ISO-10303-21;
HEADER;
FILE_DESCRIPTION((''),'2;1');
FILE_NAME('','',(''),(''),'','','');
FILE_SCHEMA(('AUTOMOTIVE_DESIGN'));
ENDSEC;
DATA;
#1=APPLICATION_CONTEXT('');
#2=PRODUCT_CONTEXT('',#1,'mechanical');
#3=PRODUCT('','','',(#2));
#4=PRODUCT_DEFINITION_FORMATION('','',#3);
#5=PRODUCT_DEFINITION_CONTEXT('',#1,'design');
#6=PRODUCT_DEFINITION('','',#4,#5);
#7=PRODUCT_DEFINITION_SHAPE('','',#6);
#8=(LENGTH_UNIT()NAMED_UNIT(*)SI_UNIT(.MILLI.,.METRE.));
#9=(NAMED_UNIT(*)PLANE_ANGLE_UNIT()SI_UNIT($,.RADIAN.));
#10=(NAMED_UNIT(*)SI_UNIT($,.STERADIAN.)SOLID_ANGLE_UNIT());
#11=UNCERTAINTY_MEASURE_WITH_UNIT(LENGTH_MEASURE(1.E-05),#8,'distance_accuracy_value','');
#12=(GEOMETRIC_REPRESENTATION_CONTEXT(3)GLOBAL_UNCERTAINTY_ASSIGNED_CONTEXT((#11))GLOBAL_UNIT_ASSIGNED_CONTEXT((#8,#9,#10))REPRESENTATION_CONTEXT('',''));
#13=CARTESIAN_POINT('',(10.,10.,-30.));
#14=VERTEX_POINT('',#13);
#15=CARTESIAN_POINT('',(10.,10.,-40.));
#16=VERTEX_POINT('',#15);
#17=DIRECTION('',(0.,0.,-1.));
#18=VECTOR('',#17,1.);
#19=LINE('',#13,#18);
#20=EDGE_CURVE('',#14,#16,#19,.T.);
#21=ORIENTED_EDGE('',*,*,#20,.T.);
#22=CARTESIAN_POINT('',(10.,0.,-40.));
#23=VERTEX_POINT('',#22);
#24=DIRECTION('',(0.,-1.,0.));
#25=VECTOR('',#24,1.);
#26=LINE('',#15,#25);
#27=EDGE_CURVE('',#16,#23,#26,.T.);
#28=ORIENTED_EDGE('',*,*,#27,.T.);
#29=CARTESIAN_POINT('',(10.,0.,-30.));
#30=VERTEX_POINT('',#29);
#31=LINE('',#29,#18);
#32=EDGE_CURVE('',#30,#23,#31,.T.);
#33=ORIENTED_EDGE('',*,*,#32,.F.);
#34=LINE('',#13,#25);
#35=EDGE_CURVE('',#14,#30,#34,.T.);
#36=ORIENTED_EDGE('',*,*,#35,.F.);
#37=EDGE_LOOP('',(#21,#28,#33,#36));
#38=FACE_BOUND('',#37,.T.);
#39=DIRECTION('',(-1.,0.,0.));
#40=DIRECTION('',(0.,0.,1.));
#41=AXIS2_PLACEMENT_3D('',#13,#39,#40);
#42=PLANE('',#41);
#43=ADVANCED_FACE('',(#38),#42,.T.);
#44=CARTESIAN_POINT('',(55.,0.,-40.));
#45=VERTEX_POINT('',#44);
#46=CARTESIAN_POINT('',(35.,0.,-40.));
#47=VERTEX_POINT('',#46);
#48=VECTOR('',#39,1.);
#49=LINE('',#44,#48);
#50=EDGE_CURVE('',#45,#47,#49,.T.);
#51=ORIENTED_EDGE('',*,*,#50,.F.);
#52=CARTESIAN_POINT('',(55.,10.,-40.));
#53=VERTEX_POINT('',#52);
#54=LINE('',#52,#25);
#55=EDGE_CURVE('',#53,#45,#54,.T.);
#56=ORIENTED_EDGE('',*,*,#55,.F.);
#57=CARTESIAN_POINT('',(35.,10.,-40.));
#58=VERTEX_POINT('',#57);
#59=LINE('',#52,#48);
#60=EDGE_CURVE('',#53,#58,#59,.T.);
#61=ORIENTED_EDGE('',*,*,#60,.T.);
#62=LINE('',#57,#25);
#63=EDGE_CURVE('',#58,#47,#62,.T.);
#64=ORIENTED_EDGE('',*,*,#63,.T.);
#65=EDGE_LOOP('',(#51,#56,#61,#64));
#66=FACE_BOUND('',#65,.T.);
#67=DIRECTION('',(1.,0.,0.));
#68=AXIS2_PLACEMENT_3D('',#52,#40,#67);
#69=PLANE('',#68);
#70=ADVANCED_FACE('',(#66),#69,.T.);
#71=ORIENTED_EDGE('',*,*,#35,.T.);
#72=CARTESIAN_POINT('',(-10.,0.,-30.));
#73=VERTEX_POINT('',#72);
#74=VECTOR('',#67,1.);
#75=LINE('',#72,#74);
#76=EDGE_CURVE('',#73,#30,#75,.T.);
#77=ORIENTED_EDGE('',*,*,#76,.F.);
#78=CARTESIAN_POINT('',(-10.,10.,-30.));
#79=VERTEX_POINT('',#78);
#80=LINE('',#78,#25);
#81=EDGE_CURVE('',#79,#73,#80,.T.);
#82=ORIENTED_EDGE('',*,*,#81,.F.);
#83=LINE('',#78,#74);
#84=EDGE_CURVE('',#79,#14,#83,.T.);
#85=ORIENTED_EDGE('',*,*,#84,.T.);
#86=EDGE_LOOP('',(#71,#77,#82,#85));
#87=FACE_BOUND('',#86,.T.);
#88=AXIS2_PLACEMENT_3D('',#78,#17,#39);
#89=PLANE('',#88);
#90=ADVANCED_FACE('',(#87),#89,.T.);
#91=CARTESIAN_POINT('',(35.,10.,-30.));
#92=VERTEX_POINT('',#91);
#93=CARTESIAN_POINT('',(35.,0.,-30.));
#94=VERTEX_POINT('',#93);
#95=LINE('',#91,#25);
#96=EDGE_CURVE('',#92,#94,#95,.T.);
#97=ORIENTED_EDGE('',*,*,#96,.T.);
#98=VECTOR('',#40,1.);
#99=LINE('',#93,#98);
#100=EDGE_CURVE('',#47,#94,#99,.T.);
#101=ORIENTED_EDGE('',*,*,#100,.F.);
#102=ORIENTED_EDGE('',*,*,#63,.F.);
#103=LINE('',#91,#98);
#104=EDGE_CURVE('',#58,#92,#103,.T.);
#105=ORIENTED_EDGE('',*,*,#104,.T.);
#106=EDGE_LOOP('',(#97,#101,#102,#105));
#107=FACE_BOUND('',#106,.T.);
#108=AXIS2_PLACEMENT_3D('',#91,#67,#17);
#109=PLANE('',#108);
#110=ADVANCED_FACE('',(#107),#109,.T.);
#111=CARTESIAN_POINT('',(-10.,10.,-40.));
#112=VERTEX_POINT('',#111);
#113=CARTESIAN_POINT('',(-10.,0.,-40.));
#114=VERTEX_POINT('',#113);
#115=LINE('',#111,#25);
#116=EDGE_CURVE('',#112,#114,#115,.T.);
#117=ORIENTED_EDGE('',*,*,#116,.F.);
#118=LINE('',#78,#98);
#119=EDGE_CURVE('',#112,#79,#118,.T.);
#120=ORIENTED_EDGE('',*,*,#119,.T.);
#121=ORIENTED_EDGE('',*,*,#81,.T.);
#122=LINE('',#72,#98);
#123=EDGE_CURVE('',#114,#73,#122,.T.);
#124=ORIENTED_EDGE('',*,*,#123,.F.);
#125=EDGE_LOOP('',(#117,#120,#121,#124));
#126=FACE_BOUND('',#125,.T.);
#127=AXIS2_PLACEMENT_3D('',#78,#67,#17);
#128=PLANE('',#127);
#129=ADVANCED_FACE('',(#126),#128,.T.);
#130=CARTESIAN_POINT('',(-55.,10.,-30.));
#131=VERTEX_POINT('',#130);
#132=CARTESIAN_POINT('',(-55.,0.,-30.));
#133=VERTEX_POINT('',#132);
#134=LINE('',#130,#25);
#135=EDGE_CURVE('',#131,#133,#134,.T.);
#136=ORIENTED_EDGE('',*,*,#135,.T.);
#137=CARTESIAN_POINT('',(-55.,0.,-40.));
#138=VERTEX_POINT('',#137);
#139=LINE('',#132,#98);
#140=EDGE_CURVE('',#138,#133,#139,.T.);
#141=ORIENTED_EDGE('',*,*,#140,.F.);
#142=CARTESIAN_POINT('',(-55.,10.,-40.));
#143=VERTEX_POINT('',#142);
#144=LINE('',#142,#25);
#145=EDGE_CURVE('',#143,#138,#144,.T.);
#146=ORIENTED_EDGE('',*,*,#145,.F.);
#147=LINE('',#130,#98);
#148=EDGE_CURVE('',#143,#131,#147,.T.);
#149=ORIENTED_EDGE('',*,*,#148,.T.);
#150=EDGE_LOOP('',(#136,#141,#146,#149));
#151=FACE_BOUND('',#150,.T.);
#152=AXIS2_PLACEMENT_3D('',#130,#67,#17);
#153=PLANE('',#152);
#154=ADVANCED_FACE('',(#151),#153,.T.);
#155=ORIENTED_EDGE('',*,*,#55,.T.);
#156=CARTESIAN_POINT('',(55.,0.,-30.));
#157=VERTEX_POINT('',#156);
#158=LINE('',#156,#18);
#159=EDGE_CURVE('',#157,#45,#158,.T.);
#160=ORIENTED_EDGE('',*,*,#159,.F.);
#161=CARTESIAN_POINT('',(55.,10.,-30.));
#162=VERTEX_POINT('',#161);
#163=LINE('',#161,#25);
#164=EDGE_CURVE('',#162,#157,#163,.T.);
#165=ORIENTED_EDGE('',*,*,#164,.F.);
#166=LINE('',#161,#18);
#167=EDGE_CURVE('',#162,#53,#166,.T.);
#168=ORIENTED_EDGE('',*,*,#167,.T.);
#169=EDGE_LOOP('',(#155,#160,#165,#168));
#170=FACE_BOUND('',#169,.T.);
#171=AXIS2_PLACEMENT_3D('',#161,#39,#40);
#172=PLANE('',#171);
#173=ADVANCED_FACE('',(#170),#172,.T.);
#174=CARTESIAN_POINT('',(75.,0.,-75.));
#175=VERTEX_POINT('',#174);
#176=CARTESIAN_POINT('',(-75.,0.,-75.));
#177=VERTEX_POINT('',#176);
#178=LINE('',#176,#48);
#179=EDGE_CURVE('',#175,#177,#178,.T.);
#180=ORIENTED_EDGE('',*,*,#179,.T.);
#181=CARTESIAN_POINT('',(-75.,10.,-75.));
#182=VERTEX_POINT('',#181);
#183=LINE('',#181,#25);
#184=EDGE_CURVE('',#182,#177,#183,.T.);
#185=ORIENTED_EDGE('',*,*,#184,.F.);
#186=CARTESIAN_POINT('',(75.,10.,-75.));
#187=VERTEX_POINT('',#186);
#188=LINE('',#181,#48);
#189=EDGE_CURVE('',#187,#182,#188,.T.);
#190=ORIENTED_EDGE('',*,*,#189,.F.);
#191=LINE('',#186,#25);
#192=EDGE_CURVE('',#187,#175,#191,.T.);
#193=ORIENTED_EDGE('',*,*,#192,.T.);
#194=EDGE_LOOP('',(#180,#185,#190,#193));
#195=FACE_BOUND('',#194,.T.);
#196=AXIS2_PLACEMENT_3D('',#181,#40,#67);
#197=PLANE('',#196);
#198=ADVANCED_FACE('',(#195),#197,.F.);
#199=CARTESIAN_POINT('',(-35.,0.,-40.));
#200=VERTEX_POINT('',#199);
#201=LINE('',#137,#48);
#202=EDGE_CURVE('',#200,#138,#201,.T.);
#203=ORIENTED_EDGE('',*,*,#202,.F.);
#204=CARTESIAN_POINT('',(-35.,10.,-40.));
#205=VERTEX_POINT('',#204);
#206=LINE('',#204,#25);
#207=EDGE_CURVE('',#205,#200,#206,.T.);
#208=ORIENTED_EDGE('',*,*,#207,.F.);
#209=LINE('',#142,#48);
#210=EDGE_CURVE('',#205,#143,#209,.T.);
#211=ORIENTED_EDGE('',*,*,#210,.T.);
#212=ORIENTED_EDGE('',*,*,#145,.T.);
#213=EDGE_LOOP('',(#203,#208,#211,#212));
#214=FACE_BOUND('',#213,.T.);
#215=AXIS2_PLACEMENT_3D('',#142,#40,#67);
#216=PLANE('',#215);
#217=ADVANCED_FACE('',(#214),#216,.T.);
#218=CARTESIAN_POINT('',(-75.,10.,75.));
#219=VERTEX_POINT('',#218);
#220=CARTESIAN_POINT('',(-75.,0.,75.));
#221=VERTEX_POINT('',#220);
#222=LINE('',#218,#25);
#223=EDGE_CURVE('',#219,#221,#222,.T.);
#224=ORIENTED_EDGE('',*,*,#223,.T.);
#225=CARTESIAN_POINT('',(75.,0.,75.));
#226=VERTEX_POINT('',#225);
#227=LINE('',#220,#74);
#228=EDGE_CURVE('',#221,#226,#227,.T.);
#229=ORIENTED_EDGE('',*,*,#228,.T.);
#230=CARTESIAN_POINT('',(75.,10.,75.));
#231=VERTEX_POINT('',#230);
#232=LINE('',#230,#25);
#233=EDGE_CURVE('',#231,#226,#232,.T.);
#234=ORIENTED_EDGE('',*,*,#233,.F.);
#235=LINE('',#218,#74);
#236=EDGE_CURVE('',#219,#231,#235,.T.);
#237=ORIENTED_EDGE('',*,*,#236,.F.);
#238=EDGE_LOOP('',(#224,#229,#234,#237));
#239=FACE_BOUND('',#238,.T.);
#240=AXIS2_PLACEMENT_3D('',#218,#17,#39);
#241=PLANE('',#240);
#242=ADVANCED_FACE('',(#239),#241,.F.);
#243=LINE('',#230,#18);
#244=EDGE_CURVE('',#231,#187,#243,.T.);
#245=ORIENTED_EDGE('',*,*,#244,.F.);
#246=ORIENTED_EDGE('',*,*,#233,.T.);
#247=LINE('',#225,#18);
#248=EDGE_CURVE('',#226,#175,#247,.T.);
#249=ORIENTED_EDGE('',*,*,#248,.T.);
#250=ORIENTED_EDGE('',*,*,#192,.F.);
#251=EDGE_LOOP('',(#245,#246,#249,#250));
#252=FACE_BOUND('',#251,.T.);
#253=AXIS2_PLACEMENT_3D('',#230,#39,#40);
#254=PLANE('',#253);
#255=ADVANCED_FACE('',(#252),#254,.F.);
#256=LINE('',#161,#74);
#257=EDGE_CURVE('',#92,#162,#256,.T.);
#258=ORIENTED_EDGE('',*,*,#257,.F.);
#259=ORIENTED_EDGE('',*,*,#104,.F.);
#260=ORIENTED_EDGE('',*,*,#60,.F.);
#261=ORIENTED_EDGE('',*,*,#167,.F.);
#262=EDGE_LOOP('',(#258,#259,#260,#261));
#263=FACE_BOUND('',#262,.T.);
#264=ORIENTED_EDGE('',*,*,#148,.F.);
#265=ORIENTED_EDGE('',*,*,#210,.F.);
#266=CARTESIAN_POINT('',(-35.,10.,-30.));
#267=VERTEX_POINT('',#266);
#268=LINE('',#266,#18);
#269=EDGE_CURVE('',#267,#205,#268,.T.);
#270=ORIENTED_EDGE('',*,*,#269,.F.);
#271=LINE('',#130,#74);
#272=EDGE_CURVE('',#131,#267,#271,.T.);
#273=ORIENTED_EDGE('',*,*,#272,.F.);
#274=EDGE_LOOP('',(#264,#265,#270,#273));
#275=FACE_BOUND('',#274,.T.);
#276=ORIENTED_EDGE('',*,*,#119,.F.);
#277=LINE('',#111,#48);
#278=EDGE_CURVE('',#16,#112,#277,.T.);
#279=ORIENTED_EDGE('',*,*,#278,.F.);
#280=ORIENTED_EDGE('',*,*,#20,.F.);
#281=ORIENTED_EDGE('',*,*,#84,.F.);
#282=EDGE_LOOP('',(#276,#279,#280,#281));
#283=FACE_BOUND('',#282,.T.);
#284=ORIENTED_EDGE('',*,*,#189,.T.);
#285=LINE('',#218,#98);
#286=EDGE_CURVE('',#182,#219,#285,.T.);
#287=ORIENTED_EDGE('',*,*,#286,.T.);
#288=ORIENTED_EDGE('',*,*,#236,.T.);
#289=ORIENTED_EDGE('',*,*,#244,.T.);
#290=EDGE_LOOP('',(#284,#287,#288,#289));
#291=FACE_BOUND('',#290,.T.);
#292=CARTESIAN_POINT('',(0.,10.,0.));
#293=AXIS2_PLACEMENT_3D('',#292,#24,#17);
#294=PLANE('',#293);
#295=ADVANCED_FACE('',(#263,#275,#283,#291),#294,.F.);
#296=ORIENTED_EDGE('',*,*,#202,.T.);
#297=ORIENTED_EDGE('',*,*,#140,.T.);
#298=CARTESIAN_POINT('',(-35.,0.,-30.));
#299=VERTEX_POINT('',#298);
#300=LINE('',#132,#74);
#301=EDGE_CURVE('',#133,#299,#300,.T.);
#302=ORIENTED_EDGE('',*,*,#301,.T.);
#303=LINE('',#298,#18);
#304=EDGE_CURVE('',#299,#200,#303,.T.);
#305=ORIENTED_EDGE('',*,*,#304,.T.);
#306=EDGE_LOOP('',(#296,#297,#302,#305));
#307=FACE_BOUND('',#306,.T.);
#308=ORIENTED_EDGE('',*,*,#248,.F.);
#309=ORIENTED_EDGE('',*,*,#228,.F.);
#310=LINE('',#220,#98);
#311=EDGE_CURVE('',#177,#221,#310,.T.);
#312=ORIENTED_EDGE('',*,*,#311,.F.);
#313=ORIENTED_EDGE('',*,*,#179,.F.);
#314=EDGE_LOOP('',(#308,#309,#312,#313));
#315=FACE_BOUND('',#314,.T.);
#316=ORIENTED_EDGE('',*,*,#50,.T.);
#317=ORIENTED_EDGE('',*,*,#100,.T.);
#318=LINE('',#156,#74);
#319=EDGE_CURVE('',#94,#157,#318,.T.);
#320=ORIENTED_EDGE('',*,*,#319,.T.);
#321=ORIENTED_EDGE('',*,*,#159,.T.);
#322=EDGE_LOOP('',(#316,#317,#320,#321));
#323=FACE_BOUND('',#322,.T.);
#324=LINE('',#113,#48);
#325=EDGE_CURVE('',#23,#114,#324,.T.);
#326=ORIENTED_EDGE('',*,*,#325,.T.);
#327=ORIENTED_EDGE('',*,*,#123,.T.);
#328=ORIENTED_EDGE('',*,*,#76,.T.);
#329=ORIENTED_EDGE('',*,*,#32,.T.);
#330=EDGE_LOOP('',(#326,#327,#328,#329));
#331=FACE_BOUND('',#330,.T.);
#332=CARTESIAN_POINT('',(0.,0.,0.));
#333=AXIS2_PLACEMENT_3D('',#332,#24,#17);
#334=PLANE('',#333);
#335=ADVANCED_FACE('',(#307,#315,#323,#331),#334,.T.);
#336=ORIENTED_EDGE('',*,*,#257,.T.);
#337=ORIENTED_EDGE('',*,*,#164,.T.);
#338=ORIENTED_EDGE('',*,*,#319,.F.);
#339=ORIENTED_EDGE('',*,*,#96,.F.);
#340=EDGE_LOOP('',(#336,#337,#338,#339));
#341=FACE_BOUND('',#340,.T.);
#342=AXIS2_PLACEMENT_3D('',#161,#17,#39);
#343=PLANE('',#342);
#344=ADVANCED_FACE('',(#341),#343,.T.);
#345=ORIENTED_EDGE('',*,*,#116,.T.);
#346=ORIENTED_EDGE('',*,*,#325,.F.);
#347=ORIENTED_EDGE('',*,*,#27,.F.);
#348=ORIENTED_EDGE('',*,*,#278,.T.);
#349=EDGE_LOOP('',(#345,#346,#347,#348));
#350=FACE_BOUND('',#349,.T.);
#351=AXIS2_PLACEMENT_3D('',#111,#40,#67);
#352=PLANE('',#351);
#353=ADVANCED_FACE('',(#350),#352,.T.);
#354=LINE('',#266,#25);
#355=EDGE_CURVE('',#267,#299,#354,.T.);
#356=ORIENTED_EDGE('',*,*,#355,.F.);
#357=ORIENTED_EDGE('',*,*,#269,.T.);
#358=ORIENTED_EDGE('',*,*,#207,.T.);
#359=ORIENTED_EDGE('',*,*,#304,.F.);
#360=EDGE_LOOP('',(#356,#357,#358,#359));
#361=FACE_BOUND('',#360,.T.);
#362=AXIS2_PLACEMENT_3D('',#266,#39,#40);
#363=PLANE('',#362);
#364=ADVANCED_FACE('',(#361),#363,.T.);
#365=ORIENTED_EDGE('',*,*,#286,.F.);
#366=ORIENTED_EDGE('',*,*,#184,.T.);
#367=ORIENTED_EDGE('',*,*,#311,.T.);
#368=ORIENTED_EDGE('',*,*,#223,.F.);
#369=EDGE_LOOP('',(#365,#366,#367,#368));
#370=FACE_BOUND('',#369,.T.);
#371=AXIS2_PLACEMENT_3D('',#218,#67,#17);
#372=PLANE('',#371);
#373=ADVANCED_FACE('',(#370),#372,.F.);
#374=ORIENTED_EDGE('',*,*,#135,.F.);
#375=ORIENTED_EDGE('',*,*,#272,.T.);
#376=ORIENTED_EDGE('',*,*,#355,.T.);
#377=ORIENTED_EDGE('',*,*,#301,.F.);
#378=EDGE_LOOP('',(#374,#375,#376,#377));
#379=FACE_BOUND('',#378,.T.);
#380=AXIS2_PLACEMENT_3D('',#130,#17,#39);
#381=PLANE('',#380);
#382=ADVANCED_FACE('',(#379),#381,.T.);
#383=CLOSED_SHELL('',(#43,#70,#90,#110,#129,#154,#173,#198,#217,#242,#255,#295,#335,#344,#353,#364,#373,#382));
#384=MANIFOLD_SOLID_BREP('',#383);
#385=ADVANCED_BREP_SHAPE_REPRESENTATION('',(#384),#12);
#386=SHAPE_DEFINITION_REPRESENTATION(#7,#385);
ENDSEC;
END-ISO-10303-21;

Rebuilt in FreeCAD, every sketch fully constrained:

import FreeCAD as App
import Part
import Sketcher
Q = App.Units.Quantity


def add_polygon(sketch, points):
    """Adds a closed chain of lines whose ends are joined by coincident constraints."""
    first, n = sketch.GeometryCount, len(points)
    for a, b in zip(points, points[1:] + points[:1]):
        sketch.addGeometry(Part.LineSegment(App.Vector(*a, 0), App.Vector(*b, 0)), False)
    for i in range(n):
        sketch.addConstraint(Sketcher.Constraint("Coincident", first + i, 2, first + (i + 1) % n, 1))

doc = App.newDocument("Part")
params = doc.addObject("Spreadsheet::Sheet", "Params")
for row, (alias, value) in enumerate([
    ("sketch1_width", "150 mm"),
    ("sketch1_width2", "20 mm"),
    ("sketch1_height", "10 mm"),
    ("pad1_length", "10 mm"),
], start=1):
    params.set(f"A{row}", alias)
    params.set(f"B{row}", "=" + value)
    params.setAlias(f"B{row}", alias)

body = doc.addObject("PartDesign::Body", "Body")

# Sketch on XZ plane
sketch1 = body.newObject("Sketcher::SketchObject", "Sketch")
sketch1.AttachmentSupport = (doc.getObject("XZ_Plane"), [""])
sketch1.MapMode = "FlatFace"
add_polygon(sketch1, [(-75, -75), (-75, 75), (75, 75), (75, -75)])  # lines 0-3
add_polygon(sketch1, [(-35, -30), (-55, -30), (-55, -40), (-35, -40)])  # lines 4-7
add_polygon(sketch1, [(10, -30), (-10, -30), (-10, -40), (10, -40)])  # lines 8-11
add_polygon(sketch1, [(55, -30), (35, -30), (35, -40), (55, -40)])  # lines 12-15
sketch1.addConstraint([
    Sketcher.Constraint("Vertical", 0),
    Sketcher.Constraint("Horizontal", 1),
    Sketcher.Constraint("Vertical", 2),
    Sketcher.Constraint("Horizontal", 3),
    Sketcher.Constraint("Horizontal", 4),
    Sketcher.Constraint("Vertical", 5),
    Sketcher.Constraint("Horizontal", 6),
    Sketcher.Constraint("Vertical", 7),
    Sketcher.Constraint("Horizontal", 8),
    Sketcher.Constraint("Vertical", 9),
    Sketcher.Constraint("Horizontal", 10),
    Sketcher.Constraint("Vertical", 11),
    Sketcher.Constraint("Horizontal", 12),
    Sketcher.Constraint("Vertical", 13),
    Sketcher.Constraint("Horizontal", 14),
    Sketcher.Constraint("Vertical", 15),
    Sketcher.Constraint("Symmetric", 0, 2, 2, 2, -1, 1),
    Sketcher.Constraint("Symmetric", 7, 2, 12, 2, -2),
    Sketcher.Constraint("Symmetric", 5, 2, 14, 2, -2),
    Sketcher.Constraint("Horizontal", 7, 2, 8, 2),
    Sketcher.Constraint("Horizontal", 6, 2, 9, 2),
    Sketcher.Constraint("Equal", 6, 8),
    Sketcher.Constraint("Equal", 3, 0),
    Sketcher.Constraint("DistanceX", 1, 1, 1, 2, Q("150 mm")),
    Sketcher.Constraint("DistanceX", 4, 2, 4, 1, Q("20 mm")),
    Sketcher.Constraint("DistanceY", 5, 2, 5, 1, Q("10 mm")),
    Sketcher.Constraint("DistanceX", 4, 2, -1, 1, Q("55 mm")),
    Sketcher.Constraint("DistanceY", 4, 2, -1, 1, Q("30 mm")),
    Sketcher.Constraint("DistanceX", 8, 2, -1, 1, Q("10 mm")),
])
sketch1.setExpression("Constraints[39]", "Params.sketch1_width")
sketch1.setExpression("Constraints[40]", "Params.sketch1_width2")
sketch1.setExpression("Constraints[41]", "Params.sketch1_height")
pad1 = body.newObject("PartDesign::Pad", "Pad")
pad1.Profile = sketch1
pad1.setExpression("Length", "Params.pad1_length")
pad1.Reversed = True

doc.recompute()
